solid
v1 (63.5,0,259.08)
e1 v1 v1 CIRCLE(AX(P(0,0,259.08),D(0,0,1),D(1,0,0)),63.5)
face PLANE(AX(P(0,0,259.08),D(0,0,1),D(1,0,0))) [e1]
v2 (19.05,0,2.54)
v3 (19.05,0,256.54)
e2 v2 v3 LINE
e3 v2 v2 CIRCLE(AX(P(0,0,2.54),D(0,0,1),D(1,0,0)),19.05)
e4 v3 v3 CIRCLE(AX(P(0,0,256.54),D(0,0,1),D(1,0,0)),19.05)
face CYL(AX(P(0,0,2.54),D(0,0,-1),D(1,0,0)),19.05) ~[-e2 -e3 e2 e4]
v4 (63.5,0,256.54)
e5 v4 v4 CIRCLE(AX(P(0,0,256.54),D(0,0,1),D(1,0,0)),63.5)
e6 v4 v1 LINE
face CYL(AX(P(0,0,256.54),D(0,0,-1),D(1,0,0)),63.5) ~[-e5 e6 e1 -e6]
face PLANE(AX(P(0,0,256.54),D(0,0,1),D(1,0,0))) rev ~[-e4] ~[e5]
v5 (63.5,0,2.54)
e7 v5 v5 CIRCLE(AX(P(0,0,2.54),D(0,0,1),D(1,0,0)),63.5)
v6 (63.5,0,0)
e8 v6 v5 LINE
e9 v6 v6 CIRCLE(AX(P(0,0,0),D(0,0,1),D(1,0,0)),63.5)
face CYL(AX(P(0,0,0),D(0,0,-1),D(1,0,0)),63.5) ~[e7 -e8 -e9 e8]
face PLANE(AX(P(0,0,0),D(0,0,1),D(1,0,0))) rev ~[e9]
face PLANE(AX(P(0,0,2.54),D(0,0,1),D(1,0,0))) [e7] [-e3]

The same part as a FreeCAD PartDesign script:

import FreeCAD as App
import Part
import Sketcher
Q = App.Units.Quantity

doc = App.newDocument("Part")
params = doc.addObject("Spreadsheet::Sheet", "Params")
for row, (alias, value) in enumerate([
    ("sketch1_diameter", "5 in"),
    ("pad1_length", "0.1 in"),
    ("sketch2_diameter", "1.5 in"),
    ("pad2_length", "10 in"),
    ("sketch3_diameter", "5 in"),
    ("pad3_length", "0.1 in"),
], start=1):
    params.set(f"A{row}", alias)
    params.set(f"B{row}", "=" + value)
    params.setAlias(f"B{row}", alias)

body = doc.addObject("PartDesign::Body", "Body")

sketch1 = doc.addObject("Sketcher::SketchObject", "Sketch")
body.addObject(sketch1)
sketch1.AttachmentSupport = (doc.XY_Plane, [""])
sketch1.MapMode = "FlatFace"
sketch1.addGeometry(Part.Circle(App.Vector(0, 0, 0), App.Vector(0, 0, 1), 64), False)
sketch1.addConstraint([
    Sketcher.Constraint("Coincident", 0, 3, -1, 1),
    Sketcher.Constraint("Diameter", 0, Q("5 in")),
])
sketch1.setExpression("Constraints[1]", "Params.sketch1_diameter")
pad1 = doc.addObject("PartDesign::Pad", "Pad")
body.addObject(pad1)
pad1.Profile = sketch1
pad1.setExpression("Length", "Params.pad1_length")

sketch2 = doc.addObject("Sketcher::SketchObject", "Sketch001")
body.addObject(sketch2)
sketch2.AttachmentSupport = (doc.XY_Plane, [""])
sketch2.MapMode = "FlatFace"
sketch2.AttachmentOffset = App.Placement(App.Vector(0, 0, 0.1 * 25.4), App.Rotation())
sketch2.addGeometry(Part.Circle(App.Vector(0, 0, 0), App.Vector(0, 0, 1), 19), False)
sketch2.addConstraint([
    Sketcher.Constraint("Coincident", 0, 3, -1, 1),
    Sketcher.Constraint("Diameter", 0, Q("1.5 in")),
])
sketch2.setExpression("Constraints[1]", "Params.sketch2_diameter")
pad2 = doc.addObject("PartDesign::Pad", "Pad001")
body.addObject(pad2)
pad2.Profile = sketch2
pad2.setExpression("Length", "Params.pad2_length")

sketch3 = doc.addObject("Sketcher::SketchObject", "Sketch002")
body.addObject(sketch3)
sketch3.AttachmentSupport = (doc.XY_Plane, [""])
sketch3.MapMode = "FlatFace"
sketch3.AttachmentOffset = App.Placement(App.Vector(0, 0, 10.1 * 25.4), App.Rotation())
sketch3.addGeometry(Part.Circle(App.Vector(0, 0, 0), App.Vector(0, 0, 1), 64), False)
sketch3.addConstraint([
    Sketcher.Constraint("Coincident", 0, 3, -1, 1),
    Sketcher.Constraint("Diameter", 0, Q("5 in")),
])
sketch3.setExpression("Constraints[1]", "Params.sketch3_diameter")
pad3 = doc.addObject("PartDesign::Pad", "Pad002")
body.addObject(pad3)
pad3.Profile = sketch3
pad3.setExpression("Length", "Params.pad3_length")

doc.recompute()
